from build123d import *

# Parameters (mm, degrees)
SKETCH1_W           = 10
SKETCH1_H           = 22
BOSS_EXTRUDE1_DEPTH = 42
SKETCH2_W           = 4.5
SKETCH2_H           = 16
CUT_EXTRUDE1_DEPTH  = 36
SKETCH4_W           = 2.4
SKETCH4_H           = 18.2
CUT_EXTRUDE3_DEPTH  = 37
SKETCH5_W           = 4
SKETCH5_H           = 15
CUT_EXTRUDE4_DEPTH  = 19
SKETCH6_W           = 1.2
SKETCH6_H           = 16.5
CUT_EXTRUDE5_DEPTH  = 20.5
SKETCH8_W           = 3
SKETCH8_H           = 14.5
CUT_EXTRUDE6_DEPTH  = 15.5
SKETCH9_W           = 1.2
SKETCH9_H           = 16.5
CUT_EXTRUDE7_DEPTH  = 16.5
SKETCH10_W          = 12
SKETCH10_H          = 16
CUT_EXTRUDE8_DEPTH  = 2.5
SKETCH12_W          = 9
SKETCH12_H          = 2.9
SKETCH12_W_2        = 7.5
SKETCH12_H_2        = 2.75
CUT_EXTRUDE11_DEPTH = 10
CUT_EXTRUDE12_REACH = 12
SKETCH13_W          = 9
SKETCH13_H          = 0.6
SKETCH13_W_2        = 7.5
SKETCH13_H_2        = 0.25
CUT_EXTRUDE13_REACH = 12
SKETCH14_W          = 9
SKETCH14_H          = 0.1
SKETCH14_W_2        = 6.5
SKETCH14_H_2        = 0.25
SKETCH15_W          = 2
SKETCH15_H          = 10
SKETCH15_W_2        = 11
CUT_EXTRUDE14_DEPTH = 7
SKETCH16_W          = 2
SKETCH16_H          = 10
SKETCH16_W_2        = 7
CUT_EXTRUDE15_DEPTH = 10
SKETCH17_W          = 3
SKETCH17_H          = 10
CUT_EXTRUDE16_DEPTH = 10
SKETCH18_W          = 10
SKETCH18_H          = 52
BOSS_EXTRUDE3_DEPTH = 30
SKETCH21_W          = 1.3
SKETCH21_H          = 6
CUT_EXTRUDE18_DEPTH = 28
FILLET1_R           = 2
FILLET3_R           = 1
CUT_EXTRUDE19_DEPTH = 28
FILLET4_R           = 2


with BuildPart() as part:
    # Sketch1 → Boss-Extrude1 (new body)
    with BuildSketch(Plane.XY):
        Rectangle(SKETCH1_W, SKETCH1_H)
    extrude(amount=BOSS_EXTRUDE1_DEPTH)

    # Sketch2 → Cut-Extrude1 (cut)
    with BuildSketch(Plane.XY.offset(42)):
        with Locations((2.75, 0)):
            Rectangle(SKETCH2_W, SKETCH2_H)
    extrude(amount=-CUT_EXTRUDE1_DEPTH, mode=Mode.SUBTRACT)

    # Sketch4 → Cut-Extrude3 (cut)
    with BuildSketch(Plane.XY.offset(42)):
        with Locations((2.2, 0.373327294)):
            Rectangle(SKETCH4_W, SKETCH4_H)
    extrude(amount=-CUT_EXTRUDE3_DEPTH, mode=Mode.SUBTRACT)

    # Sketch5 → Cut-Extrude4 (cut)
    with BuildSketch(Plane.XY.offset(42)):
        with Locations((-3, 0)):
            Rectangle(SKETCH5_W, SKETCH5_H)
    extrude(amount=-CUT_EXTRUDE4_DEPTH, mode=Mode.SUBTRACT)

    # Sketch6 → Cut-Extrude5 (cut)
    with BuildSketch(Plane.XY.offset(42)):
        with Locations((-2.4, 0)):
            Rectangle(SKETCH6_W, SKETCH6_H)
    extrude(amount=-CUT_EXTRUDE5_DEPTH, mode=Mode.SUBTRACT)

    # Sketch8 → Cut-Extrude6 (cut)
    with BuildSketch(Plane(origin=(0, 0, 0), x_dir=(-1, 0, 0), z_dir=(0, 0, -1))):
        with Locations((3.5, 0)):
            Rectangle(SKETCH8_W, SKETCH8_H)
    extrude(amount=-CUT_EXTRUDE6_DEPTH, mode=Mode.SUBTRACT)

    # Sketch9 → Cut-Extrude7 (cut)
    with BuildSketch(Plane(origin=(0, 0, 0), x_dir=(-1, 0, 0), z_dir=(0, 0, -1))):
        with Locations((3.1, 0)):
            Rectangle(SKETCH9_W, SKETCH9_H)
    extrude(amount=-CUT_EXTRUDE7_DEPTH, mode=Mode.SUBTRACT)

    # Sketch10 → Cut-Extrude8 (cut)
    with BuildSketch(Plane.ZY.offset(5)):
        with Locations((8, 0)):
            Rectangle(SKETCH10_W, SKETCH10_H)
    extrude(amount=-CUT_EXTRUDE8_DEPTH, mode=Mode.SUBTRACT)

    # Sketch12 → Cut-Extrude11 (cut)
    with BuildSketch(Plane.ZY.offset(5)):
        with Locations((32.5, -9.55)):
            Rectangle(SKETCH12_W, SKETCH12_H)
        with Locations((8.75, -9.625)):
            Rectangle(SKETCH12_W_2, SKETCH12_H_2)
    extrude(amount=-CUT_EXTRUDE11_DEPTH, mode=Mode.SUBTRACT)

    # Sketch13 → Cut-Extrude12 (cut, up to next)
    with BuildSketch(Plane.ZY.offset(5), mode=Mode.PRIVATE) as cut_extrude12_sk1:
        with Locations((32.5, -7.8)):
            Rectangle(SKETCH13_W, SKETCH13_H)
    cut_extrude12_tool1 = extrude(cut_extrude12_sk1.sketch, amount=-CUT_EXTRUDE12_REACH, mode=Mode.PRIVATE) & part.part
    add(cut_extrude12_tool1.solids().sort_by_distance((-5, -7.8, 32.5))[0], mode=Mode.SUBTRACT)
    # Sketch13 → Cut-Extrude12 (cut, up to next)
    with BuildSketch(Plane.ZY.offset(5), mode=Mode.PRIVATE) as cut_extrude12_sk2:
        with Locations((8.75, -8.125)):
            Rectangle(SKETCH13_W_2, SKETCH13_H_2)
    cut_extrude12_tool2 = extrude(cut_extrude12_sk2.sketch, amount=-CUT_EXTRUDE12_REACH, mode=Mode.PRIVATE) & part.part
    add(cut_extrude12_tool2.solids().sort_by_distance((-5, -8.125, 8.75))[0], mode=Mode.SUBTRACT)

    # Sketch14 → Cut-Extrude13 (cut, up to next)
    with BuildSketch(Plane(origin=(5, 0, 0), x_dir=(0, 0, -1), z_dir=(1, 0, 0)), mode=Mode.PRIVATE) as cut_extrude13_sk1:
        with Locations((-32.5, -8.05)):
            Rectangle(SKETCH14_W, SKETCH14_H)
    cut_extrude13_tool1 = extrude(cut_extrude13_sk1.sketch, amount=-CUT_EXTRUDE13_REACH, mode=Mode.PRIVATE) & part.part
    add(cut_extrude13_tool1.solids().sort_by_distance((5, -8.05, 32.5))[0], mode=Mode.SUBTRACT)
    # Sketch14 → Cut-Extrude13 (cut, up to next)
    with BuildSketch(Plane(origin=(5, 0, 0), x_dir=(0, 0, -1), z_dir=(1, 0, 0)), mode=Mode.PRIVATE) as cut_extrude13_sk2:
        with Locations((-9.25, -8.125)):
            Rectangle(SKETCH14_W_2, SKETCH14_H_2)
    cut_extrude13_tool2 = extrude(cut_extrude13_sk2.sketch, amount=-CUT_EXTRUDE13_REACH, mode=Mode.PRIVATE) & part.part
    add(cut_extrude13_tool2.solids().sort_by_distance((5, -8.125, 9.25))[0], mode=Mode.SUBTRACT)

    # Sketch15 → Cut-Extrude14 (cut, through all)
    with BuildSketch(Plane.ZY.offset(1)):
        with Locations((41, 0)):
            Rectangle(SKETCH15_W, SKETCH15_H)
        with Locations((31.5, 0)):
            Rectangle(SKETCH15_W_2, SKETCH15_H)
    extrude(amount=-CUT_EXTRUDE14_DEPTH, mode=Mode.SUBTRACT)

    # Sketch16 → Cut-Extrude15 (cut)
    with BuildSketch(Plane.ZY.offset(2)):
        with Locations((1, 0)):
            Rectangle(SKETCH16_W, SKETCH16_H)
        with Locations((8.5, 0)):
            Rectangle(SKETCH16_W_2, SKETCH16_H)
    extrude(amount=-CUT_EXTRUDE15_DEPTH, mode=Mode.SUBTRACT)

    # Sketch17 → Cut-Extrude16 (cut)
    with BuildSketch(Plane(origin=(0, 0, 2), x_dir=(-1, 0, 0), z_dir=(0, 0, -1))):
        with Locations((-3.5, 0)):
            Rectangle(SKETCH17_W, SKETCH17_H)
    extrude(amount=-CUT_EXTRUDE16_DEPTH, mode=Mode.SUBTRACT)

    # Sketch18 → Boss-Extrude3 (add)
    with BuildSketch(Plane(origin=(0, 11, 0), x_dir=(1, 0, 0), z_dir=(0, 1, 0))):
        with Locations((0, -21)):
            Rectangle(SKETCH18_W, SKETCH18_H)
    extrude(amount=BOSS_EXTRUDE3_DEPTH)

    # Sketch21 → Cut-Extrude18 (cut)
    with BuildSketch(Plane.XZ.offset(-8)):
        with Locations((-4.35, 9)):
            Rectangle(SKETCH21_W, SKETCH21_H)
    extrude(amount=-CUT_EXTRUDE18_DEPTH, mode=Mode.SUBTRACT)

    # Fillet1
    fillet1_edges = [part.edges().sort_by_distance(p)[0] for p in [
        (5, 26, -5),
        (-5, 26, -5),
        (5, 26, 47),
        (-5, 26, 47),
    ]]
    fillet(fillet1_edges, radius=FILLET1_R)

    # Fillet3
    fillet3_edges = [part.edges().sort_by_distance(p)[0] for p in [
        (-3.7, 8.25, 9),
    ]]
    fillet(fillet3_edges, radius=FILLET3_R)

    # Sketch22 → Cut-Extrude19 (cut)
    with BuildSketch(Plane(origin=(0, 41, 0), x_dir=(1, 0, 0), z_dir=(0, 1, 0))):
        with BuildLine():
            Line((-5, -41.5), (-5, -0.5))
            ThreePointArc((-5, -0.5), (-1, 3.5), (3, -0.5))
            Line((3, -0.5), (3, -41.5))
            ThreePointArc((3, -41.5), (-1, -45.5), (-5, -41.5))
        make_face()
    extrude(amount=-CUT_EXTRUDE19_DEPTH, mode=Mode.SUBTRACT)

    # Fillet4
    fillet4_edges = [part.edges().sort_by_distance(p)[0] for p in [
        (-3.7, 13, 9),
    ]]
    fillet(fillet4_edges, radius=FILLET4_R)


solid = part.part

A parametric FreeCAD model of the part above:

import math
import FreeCAD as App
import Part
import Sketcher


def edges_at(feature, points):
    """Names of the edges that pass closest to the given points."""
    edges = feature.Shape.Edges
    near = lambda p: min(range(len(edges)), key=lambda i: edges[i].distToShape(Part.Vertex(*p))[0])
    return sorted({f"Edge{near(p) + 1}" for p in points})

doc = App.newDocument("Part")
body = doc.addObject("PartDesign::Body", "Body")

sketch1 = body.newObject("Sketcher::SketchObject", "Sketch")
sketch1.AttachmentSupport = (doc.getObject("XY_Plane"), [""])
sketch1.MapMode = "FlatFace"
sketch1.addGeometry(Part.LineSegment(App.Vector(-5, 11, 0), App.Vector(-5, -11, 0)), False)
sketch1.addGeometry(Part.LineSegment(App.Vector(-5, -11, 0), App.Vector(5, -11, 0)), False)
sketch1.addGeometry(Part.LineSegment(App.Vector(5, -11, 0), App.Vector(5, 11, 0)), False)
sketch1.addGeometry(Part.LineSegment(App.Vector(5, 11, 0), App.Vector(-5, 11, 0)), False)
sketch1.addConstraint(Sketcher.Constraint("Coincident", 0, 2, 1, 1))
sketch1.addConstraint(Sketcher.Constraint("Coincident", 1, 2, 2, 1))
sketch1.addConstraint(Sketcher.Constraint("Coincident", 2, 2, 3, 1))
sketch1.addConstraint(Sketcher.Constraint("Coincident", 3, 2, 0, 1))
sketch1.addConstraint(Sketcher.Constraint("Vertical", 0))
sketch1.addConstraint(Sketcher.Constraint("Horizontal", 1))
sketch1.addConstraint(Sketcher.Constraint("Vertical", 2))
sketch1.addConstraint(Sketcher.Constraint("Horizontal", 3))
sketch1.addConstraint(Sketcher.Constraint("Symmetric", 0, 2, 2, 2, -1, 1))
sketch1.addConstraint(Sketcher.Constraint("DistanceX", 1, 1, 1, 2, 10.0))
sketch1.addConstraint(Sketcher.Constraint("DistanceY", 0, 2, 0, 1, 22.0))
pad1 = body.newObject("PartDesign::Pad", "Pad")
pad1.Profile = sketch1
pad1.Length = 42

sketch2 = body.newObject("Sketcher::SketchObject", "Sketch001")
sketch2.AttachmentSupport = (doc.getObject("XY_Plane"), [""])
sketch2.MapMode = "FlatFace"
sketch2.AttachmentOffset = App.Placement(App.Vector(0, 0, 42), App.Rotation())
sketch2.addGeometry(Part.LineSegment(App.Vector(0.5, 8, 0), App.Vector(0.5, -8, 0)), False)
sketch2.addGeometry(Part.LineSegment(App.Vector(0.5, -8, 0), App.Vector(5, -8, 0)), False)
sketch2.addGeometry(Part.LineSegment(App.Vector(5, -8, 0), App.Vector(5, 8, 0)), False)
sketch2.addGeometry(Part.LineSegment(App.Vector(5, 8, 0), App.Vector(0.5, 8, 0)), False)
sketch2.addConstraint(Sketcher.Constraint("Coincident", 0, 2, 1, 1))
sketch2.addConstraint(Sketcher.Constraint("Coincident", 1, 2, 2, 1))
sketch2.addConstraint(Sketcher.Constraint("Coincident", 2, 2, 3, 1))
sketch2.addConstraint(Sketcher.Constraint("Coincident", 3, 2, 0, 1))
sketch2.addConstraint(Sketcher.Constraint("Vertical", 0))
sketch2.addConstraint(Sketcher.Constraint("Horizontal", 1))
sketch2.addConstraint(Sketcher.Constraint("Vertical", 2))
sketch2.addConstraint(Sketcher.Constraint("Horizontal", 3))
sketch2.addConstraint(Sketcher.Constraint("DistanceY", 0, 2, 0, 1, 16.0))
sketch2.addConstraint(Sketcher.Constraint("DistanceX", 1, 1, 1, 2, 4.5))
sketch2.addConstraint(Sketcher.Constraint("DistanceY", 0, 2, -1, 1, 8.0))
sketch2.addConstraint(Sketcher.Constraint("DistanceX", -1, 1, 1, 2, 5.0))
pocket1 = body.newObject("PartDesign::Pocket", "Pocket")
pocket1.Profile = sketch2
pocket1.Length = 36

sketch3 = body.newObject("Sketcher::SketchObject", "Sketch002")
sketch3.AttachmentSupport = (doc.getObject("XY_Plane"), [""])
sketch3.MapMode = "FlatFace"
sketch3.AttachmentOffset = App.Placement(App.Vector(0, 0, 42), App.Rotation())
sketch3.addGeometry(Part.LineSegment(App.Vector(1, 9.473327, 0), App.Vector(1, -8.726673, 0)), False)
sketch3.addGeometry(Part.LineSegment(App.Vector(1, -8.726673, 0), App.Vector(3.4, -8.726673, 0)), False)
sketch3.addGeometry(Part.LineSegment(App.Vector(3.4, -8.726673, 0), App.Vector(3.4, 9.473327, 0)), False)
sketch3.addGeometry(Part.LineSegment(App.Vector(3.4, 9.473327, 0), App.Vector(1, 9.473327, 0)), False)
sketch3.addConstraint(Sketcher.Constraint("Coincident", 0, 2, 1, 1))
sketch3.addConstraint(Sketcher.Constraint("Coincident", 1, 2, 2, 1))
sketch3.addConstraint(Sketcher.Constraint("Coincident", 2, 2, 3, 1))
sketch3.addConstraint(Sketcher.Constraint("Coincident", 3, 2, 0, 1))
sketch3.addConstraint(Sketcher.Constraint("Vertical", 0))
sketch3.addConstraint(Sketcher.Constraint("Horizontal", 1))
sketch3.addConstraint(Sketcher.Constraint("Vertical", 2))
sketch3.addConstraint(Sketcher.Constraint("Horizontal", 3))
sketch3.addConstraint(Sketcher.Constraint("DistanceX", 1, 1, 1, 2, 2.4))
sketch3.addConstraint(Sketcher.Constraint("DistanceY", 0, 2, 0, 1, 18.2))
sketch3.addConstraint(Sketcher.Constraint("DistanceX", -1, 1, 0, 2, 1.0))
sketch3.addConstraint(Sketcher.Constraint("DistanceY", 0, 2, -1, 1, 8.726673))
pocket2 = body.newObject("PartDesign::Pocket", "Pocket001")
pocket2.Profile = sketch3
pocket2.Length = 37

sketch4 = body.newObject("Sketcher::SketchObject", "Sketch003")
sketch4.AttachmentSupport = (doc.getObject("XY_Plane"), [""])
sketch4.MapMode = "FlatFace"
sketch4.AttachmentOffset = App.Placement(App.Vector(0, 0, 42), App.Rotation())
sketch4.addGeometry(Part.LineSegment(App.Vector(-5, 7.5, 0), App.Vector(-5, -7.5, 0)), False)
sketch4.addGeometry(Part.LineSegment(App.Vector(-5, -7.5, 0), App.Vector(-1, -7.5, 0)), False)
sketch4.addGeometry(Part.LineSegment(App.Vector(-1, -7.5, 0), App.Vector(-1, 7.5, 0)), False)
sketch4.addGeometry(Part.LineSegment(App.Vector(-1, 7.5, 0), App.Vector(-5, 7.5, 0)), False)
sketch4.addConstraint(Sketcher.Constraint("Coincident", 0, 2, 1, 1))
sketch4.addConstraint(Sketcher.Constraint("Coincident", 1, 2, 2, 1))
sketch4.addConstraint(Sketcher.Constraint("Coincident", 2, 2, 3, 1))
sketch4.addConstraint(Sketcher.Constraint("Coincident", 3, 2, 0, 1))
sketch4.addConstraint(Sketcher.Constraint("Vertical", 0))
sketch4.addConstraint(Sketcher.Constraint("Horizontal", 1))
sketch4.addConstraint(Sketcher.Constraint("Vertical", 2))
sketch4.addConstraint(Sketcher.Constraint("Horizontal", 3))
sketch4.addConstraint(Sketcher.Constraint("DistanceX", 1, 1, 1, 2, 4.0))
sketch4.addConstraint(Sketcher.Constraint("DistanceY", 0, 2, 0, 1, 15.0))
sketch4.addConstraint(Sketcher.Constraint("DistanceX", 0, 2, -1, 1, 5.0))
sketch4.addConstraint(Sketcher.Constraint("DistanceY", 0, 2, -1, 1, 7.5))
pocket3 = body.newObject("PartDesign::Pocket", "Pocket002")
pocket3.Profile = sketch4
pocket3.Length = 19

sketch5 = body.newObject("Sketcher::SketchObject", "Sketch004")
sketch5.AttachmentSupport = (doc.getObject("XY_Plane"), [""])
sketch5.MapMode = "FlatFace"
sketch5.AttachmentOffset = App.Placement(App.Vector(0, 0, 42), App.Rotation())
sketch5.addGeometry(Part.LineSegment(App.Vector(-3, 8.25, 0), App.Vector(-3, -8.25, 0)), False)
sketch5.addGeometry(Part.LineSegment(App.Vector(-3, -8.25, 0), App.Vector(-1.8, -8.25, 0)), False)
sketch5.addGeometry(Part.LineSegment(App.Vector(-1.8, -8.25, 0), App.Vector(-1.8, 8.25, 0)), False)
sketch5.addGeometry(Part.LineSegment(App.Vector(-1.8, 8.25, 0), App.Vector(-3, 8.25, 0)), False)
sketch5.addConstraint(Sketcher.Constraint("Coincident", 0, 2, 1, 1))
sketch5.addConstraint(Sketcher.Constraint("Coincident", 1, 2, 2, 1))
sketch5.addConstraint(Sketcher.Constraint("Coincident", 2, 2, 3, 1))
sketch5.addConstraint(Sketcher.Constraint("Coincident", 3, 2, 0, 1))
sketch5.addConstraint(Sketcher.Constraint("Vertical", 0))
sketch5.addConstraint(Sketcher.Constraint("Horizontal", 1))
sketch5.addConstraint(Sketcher.Constraint("Vertical", 2))
sketch5.addConstraint(Sketcher.Constraint("Horizontal", 3))
sketch5.addConstraint(Sketcher.Constraint("DistanceX", 1, 1, 1, 2, 1.2))
sketch5.addConstraint(Sketcher.Constraint("DistanceY", 0, 2, 0, 1, 16.5))
sketch5.addConstraint(Sketcher.Constraint("DistanceX", 0, 2, -1, 1, 3.0))
sketch5.addConstraint(Sketcher.Constraint("DistanceY", 0, 2, -1, 1, 8.25))
pocket4 = body.newObject("PartDesign::Pocket", "Pocket003")
pocket4.Profile = sketch5
pocket4.Length = 20.5

sketch6 = body.newObject("Sketcher::SketchObject", "Sketch005")
sketch6.AttachmentSupport = (doc.getObject("XY_Plane"), [""])
sketch6.MapMode = "FlatFace"
sketch6.addGeometry(Part.LineSegment(App.Vector(-2, 7.25, 0), App.Vector(-2, -7.25, 0)), False)
sketch6.addGeometry(Part.LineSegment(App.Vector(-2, -7.25, 0), App.Vector(-5, -7.25, 0)), False)
sketch6.addGeometry(Part.LineSegment(App.Vector(-5, -7.25, 0), App.Vector(-5, 7.25, 0)), False)
sketch6.addGeometry(Part.LineSegment(App.Vector(-5, 7.25, 0), App.Vector(-2, 7.25, 0)), False)
sketch6.addConstraint(Sketcher.Constraint("Coincident", 0, 2, 1, 1))
sketch6.addConstraint(Sketcher.Constraint("Coincident", 1, 2, 2, 1))
sketch6.addConstraint(Sketcher.Constraint("Coincident", 2, 2, 3, 1))
sketch6.addConstraint(Sketcher.Constraint("Coincident", 3, 2, 0, 1))
sketch6.addConstraint(Sketcher.Constraint("Vertical", 0))
sketch6.addConstraint(Sketcher.Constraint("Horizontal", 1))
sketch6.addConstraint(Sketcher.Constraint("Vertical", 2))
sketch6.addConstraint(Sketcher.Constraint("Horizontal", 3))
sketch6.addConstraint(Sketcher.Constraint("DistanceX", 1, 2, 1, 1, 3.0))
sketch6.addConstraint(Sketcher.Constraint("DistanceY", 0, 2, 0, 1, 14.5))
sketch6.addConstraint(Sketcher.Constraint("DistanceX", 0, 2, -1, 1, 2.0))
sketch6.addConstraint(Sketcher.Constraint("DistanceY", 0, 2, -1, 1, 7.25))
pocket5 = body.newObject("PartDesign::Pocket", "Pocket004")
pocket5.Profile = sketch6
pocket5.Length = 15.5
pocket5.Reversed = True

sketch7 = body.newObject("Sketcher::SketchObject", "Sketch006")
sketch7.AttachmentSupport = (doc.getObject("XY_Plane"), [""])
sketch7.MapMode = "FlatFace"
sketch7.addGeometry(Part.LineSegment(App.Vector(-2.5, 8.25, 0), App.Vector(-2.5, -8.25, 0)), False)
sketch7.addGeometry(Part.LineSegment(App.Vector(-2.5, -8.25, 0), App.Vector(-3.7, -8.25, 0)), False)
sketch7.addGeometry(Part.LineSegment(App.Vector(-3.7, -8.25, 0), App.Vector(-3.7, 8.25, 0)), False)
sketch7.addGeometry(Part.LineSegment(App.Vector(-3.7, 8.25, 0), App.Vector(-2.5, 8.25, 0)), False)
sketch7.addConstraint(Sketcher.Constraint("Coincident", 0, 2, 1, 1))
sketch7.addConstraint(Sketcher.Constraint("Coincident", 1, 2, 2, 1))
sketch7.addConstraint(Sketcher.Constraint("Coincident", 2, 2, 3, 1))
sketch7.addConstraint(Sketcher.Constraint("Coincident", 3, 2, 0, 1))
sketch7.addConstraint(Sketcher.Constraint("Vertical", 0))
sketch7.addConstraint(Sketcher.Constraint("Horizontal", 1))
sketch7.addConstraint(Sketcher.Constraint("Vertical", 2))
sketch7.addConstraint(Sketcher.Constraint("Horizontal", 3))
sketch7.addConstraint(Sketcher.Constraint("DistanceX", 1, 2, 1, 1, 1.2))
sketch7.addConstraint(Sketcher.Constraint("DistanceY", 0, 2, 0, 1, 16.5))
sketch7.addConstraint(Sketcher.Constraint("DistanceX", 0, 2, -1, 1, 2.5))
sketch7.addConstraint(Sketcher.Constraint("DistanceY", 0, 2, -1, 1, 8.25))
pocket6 = body.newObject("PartDesign::Pocket", "Pocket005")
pocket6.Profile = sketch7
pocket6.Length = 16.5
pocket6.Reversed = True

sketch8 = body.newObject("Sketcher::SketchObject", "Sketch007")
sketch8.AttachmentSupport = (doc.getObject("YZ_Plane"), [""])
sketch8.MapMode = "FlatFace"
sketch8.AttachmentOffset = App.Placement(App.Vector(0, 0, -5), App.Rotation())
sketch8.addGeometry(Part.LineSegment(App.Vector(8, 2, 0), App.Vector(-8, 2, 0)), False)
sketch8.addGeometry(Part.LineSegment(App.Vector(-8, 2, 0), App.Vector(-8, 14, 0)), False)
sketch8.addGeometry(Part.LineSegment(App.Vector(-8, 14, 0), App.Vector(8, 14, 0)), False)
sketch8.addGeometry(Part.LineSegment(App.Vector(8, 14, 0), App.Vector(8, 2, 0)), False)
sketch8.addConstraint(Sketcher.Constraint("Coincident", 0, 2, 1, 1))
sketch8.addConstraint(Sketcher.Constraint("Coincident", 1, 2, 2, 1))
sketch8.addConstraint(Sketcher.Constraint("Coincident", 2, 2, 3, 1))
sketch8.addConstraint(Sketcher.Constraint("Coincident", 3, 2, 0, 1))
sketch8.addConstraint(Sketcher.Constraint("Horizontal", 0))
sketch8.addConstraint(Sketcher.Constraint("Vertical", 1))
sketch8.addConstraint(Sketcher.Constraint("Horizontal", 2))
sketch8.addConstraint(Sketcher.Constraint("Vertical", 3))
sketch8.addConstraint(Sketcher.Constraint("DistanceX", 0, 2, 0, 1, 16.0))
sketch8.addConstraint(Sketcher.Constraint("DistanceY", 1, 1, 1, 2, 12.0))
sketch8.addConstraint(Sketcher.Constraint("DistanceX", 0, 2, -1, 1, 8.0))
sketch8.addConstraint(Sketcher.Constraint("DistanceY", -1, 1, 0, 2, 2.0))
pocket7 = body.newObject("PartDesign::Pocket", "Pocket006")
pocket7.Profile = sketch8
pocket7.Length = 2.5
pocket7.Reversed = True

sketch9 = body.newObject("Sketcher::SketchObject", "Sketch008")
sketch9.AttachmentSupport = (doc.getObject("YZ_Plane"), [""])
sketch9.MapMode = "FlatFace"
sketch9.AttachmentOffset = App.Placement(App.Vector(0, 0, -5), App.Rotation())
sketch9.addGeometry(Part.LineSegment(App.Vector(-8.1, 28, 0), App.Vector(-11, 28, 0)), False)
sketch9.addGeometry(Part.LineSegment(App.Vector(-11, 28, 0), App.Vector(-11, 37, 0)), False)
sketch9.addGeometry(Part.LineSegment(App.Vector(-11, 37, 0), App.Vector(-8.1, 37, 0)), False)
sketch9.addGeometry(Part.LineSegment(App.Vector(-8.1, 37, 0), App.Vector(-8.1, 28, 0)), False)
sketch9.addGeometry(Part.LineSegment(App.Vector(-8.25, 5, 0), App.Vector(-11, 5, 0)), False)
sketch9.addGeometry(Part.LineSegment(App.Vector(-11, 5, 0), App.Vector(-11, 12.5, 0)), False)
sketch9.addGeometry(Part.LineSegment(App.Vector(-11, 12.5, 0), App.Vector(-8.25, 12.5, 0)), False)
sketch9.addGeometry(Part.LineSegment(App.Vector(-8.25, 12.5, 0), App.Vector(-8.25, 5, 0)), False)
sketch9.addConstraint(Sketcher.Constraint("Coincident", 0, 2, 1, 1))
sketch9.addConstraint(Sketcher.Constraint("Coincident", 1, 2, 2, 1))
sketch9.addConstraint(Sketcher.Constraint("Coincident", 2, 2, 3, 1))
sketch9.addConstraint(Sketcher.Constraint("Coincident", 3, 2, 0, 1))
sketch9.addConstraint(Sketcher.Constraint("Coincident", 4, 2, 5, 1))
sketch9.addConstraint(Sketcher.Constraint("Coincident", 5, 2, 6, 1))
sketch9.addConstraint(Sketcher.Constraint("Coincident", 6, 2, 7, 1))
sketch9.addConstraint(Sketcher.Constraint("Coincident", 7, 2, 4, 1))
sketch9.addConstraint(Sketcher.Constraint("Horizontal", 0))
sketch9.addConstraint(Sketcher.Constraint("Vertical", 1))
sketch9.addConstraint(Sketcher.Constraint("Horizontal", 2))
sketch9.addConstraint(Sketcher.Constraint("Vertical", 3))
sketch9.addConstraint(Sketcher.Constraint("Horizontal", 4))
sketch9.addConstraint(Sketcher.Constraint("Vertical", 5))
sketch9.addConstraint(Sketcher.Constraint("Horizontal", 6))
sketch9.addConstraint(Sketcher.Constraint("Vertical", 7))
sketch9.addConstraint(Sketcher.Constraint("Vertical", 1, 2, 4, 2))
sketch9.addConstraint(Sketcher.Constraint("DistanceY", 1, 1, 1, 2, 9.0))
sketch9.addConstraint(Sketcher.Constraint("DistanceX", 0, 2, 0, 1, 2.9))
sketch9.addConstraint(Sketcher.Constraint("DistanceY", 5, 1, 5, 2, 7.5))
sketch9.addConstraint(Sketcher.Constraint("DistanceX", 0, 2, -1, 1, 11.0))
sketch9.addConstraint(Sketcher.Constraint("DistanceY", -1, 1, 0, 2, 28.0))
sketch9.addConstraint(Sketcher.Constraint("DistanceY", -1, 1, 4, 2, 5.0))
sketch9.addConstraint(Sketcher.Constraint("DistanceX", 4, 2, 4, 1, 2.75))
pocket8 = body.newObject("PartDesign::Pocket", "Pocket007")
pocket8.Profile = sketch9
pocket8.Length = 10
pocket8.Reversed = True

sketch10 = body.newObject("Sketcher::SketchObject", "Sketch009")
sketch10.AttachmentSupport = (doc.getObject("YZ_Plane"), [""])
sketch10.MapMode = "FlatFace"
sketch10.AttachmentOffset = App.Placement(App.Vector(0, 0, -5), App.Rotation())
sketch10.addGeometry(Part.LineSegment(App.Vector(-7.5, 28, 0), App.Vector(-8.1, 28, 0)), False)
sketch10.addGeometry(Part.LineSegment(App.Vector(-8.1, 28, 0), App.Vector(-8.1, 37, 0)), False)
sketch10.addGeometry(Part.LineSegment(App.Vector(-8.1, 37, 0), App.Vector(-7.5, 37, 0)), False)
sketch10.addGeometry(Part.LineSegment(App.Vector(-7.5, 37, 0), App.Vector(-7.5, 28, 0)), False)
sketch10.addConstraint(Sketcher.Constraint("Coincident", 0, 2, 1, 1))
sketch10.addConstraint(Sketcher.Constraint("Coincident", 1, 2, 2, 1))
sketch10.addConstraint(Sketcher.Constraint("Coincident", 2, 2, 3, 1))
sketch10.addConstraint(Sketcher.Constraint("Coincident", 3, 2, 0, 1))
sketch10.addConstraint(Sketcher.Constraint("Horizontal", 0))
sketch10.addConstraint(Sketcher.Constraint("Vertical", 1))
sketch10.addConstraint(Sketcher.Constraint("Horizontal", 2))
sketch10.addConstraint(Sketcher.Constraint("Vertical", 3))
sketch10.addConstraint(Sketcher.Constraint("DistanceY", 1, 1, 1, 2, 9.0))
sketch10.addConstraint(Sketcher.Constraint("DistanceX", 0, 2, 0, 1, 0.6))
sketch10.addConstraint(Sketcher.Constraint("DistanceY", -1, 1, 0, 2, 28.0))
sketch10.addConstraint(Sketcher.Constraint("DistanceX", 0, 2, -1, 1, 8.1))
pocket9 = body.newObject("PartDesign::Pocket", "Pocket008")
pocket9.Profile = sketch10
pocket9.Type = "UpToFirst"
pocket9.Reversed = True

sketch11 = body.newObject("Sketcher::SketchObject", "Sketch010")
sketch11.AttachmentSupport = (doc.getObject("YZ_Plane"), [""])
sketch11.MapMode = "FlatFace"
sketch11.AttachmentOffset = App.Placement(App.Vector(0, 0, -5), App.Rotation())
sketch11.addGeometry(Part.LineSegment(App.Vector(-8, 5, 0), App.Vector(-8.25, 5, 0)), False)
sketch11.addGeometry(Part.LineSegment(App.Vector(-8.25, 5, 0), App.Vector(-8.25, 12.5, 0)), False)
sketch11.addGeometry(Part.LineSegment(App.Vector(-8.25, 12.5, 0), App.Vector(-8, 12.5, 0)), False)
sketch11.addGeometry(Part.LineSegment(App.Vector(-8, 12.5, 0), App.Vector(-8, 5, 0)), False)
sketch11.addConstraint(Sketcher.Constraint("Coincident", 0, 2, 1, 1))
sketch11.addConstraint(Sketcher.Constraint("Coincident", 1, 2, 2, 1))
sketch11.addConstraint(Sketcher.Constraint("Coincident", 2, 2, 3, 1))
sketch11.addConstraint(Sketcher.Constraint("Coincident", 3, 2, 0, 1))
sketch11.addConstraint(Sketcher.Constraint("Horizontal", 0))
sketch11.addConstraint(Sketcher.Constraint("Vertical", 1))
sketch11.addConstraint(Sketcher.Constraint("Horizontal", 2))
sketch11.addConstraint(Sketcher.Constraint("Vertical", 3))
sketch11.addConstraint(Sketcher.Constraint("DistanceY", 1, 1, 1, 2, 7.5))
sketch11.addConstraint(Sketcher.Constraint("DistanceY", -1, 1, 0, 2, 5.0))
sketch11.addConstraint(Sketcher.Constraint("DistanceX", 2, 2, -1, 1, 8.0))
sketch11.addConstraint(Sketcher.Constraint("DistanceX", 0, 2, 0, 1, 0.25))
pocket10 = body.newObject("PartDesign::Pocket", "Pocket009")
pocket10.Profile = sketch11
pocket10.Type = "UpToFirst"
pocket10.Reversed = True

sketch12 = body.newObject("Sketcher::SketchObject", "Sketch011")
sketch12.AttachmentSupport = (doc.getObject("YZ_Plane"), [""])
sketch12.MapMode = "FlatFace"
sketch12.AttachmentOffset = App.Placement(App.Vector(0, 0, 5), App.Rotation())
sketch12.addGeometry(Part.LineSegment(App.Vector(-8, 37, 0), App.Vector(-8.1, 37, 0)), False)
sketch12.addGeometry(Part.LineSegment(App.Vector(-8.1, 37, 0), App.Vector(-8.1, 28, 0)), False)
sketch12.addGeometry(Part.LineSegment(App.Vector(-8.1, 28, 0), App.Vector(-8, 28, 0)), False)
sketch12.addGeometry(Part.LineSegment(App.Vector(-8, 28, 0), App.Vector(-8, 37, 0)), False)
sketch12.addConstraint(Sketcher.Constraint("Coincident", 0, 2, 1, 1))
sketch12.addConstraint(Sketcher.Constraint("Coincident", 1, 2, 2, 1))
sketch12.addConstraint(Sketcher.Constraint("Coincident", 2, 2, 3, 1))
sketch12.addConstraint(Sketcher.Constraint("Coincident", 3, 2, 0, 1))
sketch12.addConstraint(Sketcher.Constraint("Horizontal", 0))
sketch12.addConstraint(Sketcher.Constraint("Vertical", 1))
sketch12.addConstraint(Sketcher.Constraint("Horizontal", 2))
sketch12.addConstraint(Sketcher.Constraint("Vertical", 3))
sketch12.addConstraint(Sketcher.Constraint("DistanceY", 1, 2, 1, 1, 9.0))
sketch12.addConstraint(Sketcher.Constraint("DistanceX", 0, 2, 0, 1, 0.1))
sketch12.addConstraint(Sketcher.Constraint("DistanceY", -1, 1, 0, 2, 37.0))
sketch12.addConstraint(Sketcher.Constraint("DistanceX", 2, 2, -1, 1, 8.0))
pocket11 = body.newObject("PartDesign::Pocket", "Pocket010")
pocket11.Profile = sketch12
pocket11.Type = "UpToFirst"

sketch13 = body.newObject("Sketcher::SketchObject", "Sketch012")
sketch13.AttachmentSupport = (doc.getObject("YZ_Plane"), [""])
sketch13.MapMode = "FlatFace"
sketch13.AttachmentOffset = App.Placement(App.Vector(0, 0, 5), App.Rotation())
sketch13.addGeometry(Part.LineSegment(App.Vector(-8, 12.5, 0), App.Vector(-8.25, 12.5, 0)), False)
sketch13.addGeometry(Part.LineSegment(App.Vector(-8.25, 12.5, 0), App.Vector(-8.25, 6, 0)), False)
sketch13.addGeometry(Part.LineSegment(App.Vector(-8.25, 6, 0), App.Vector(-8, 6, 0)), False)
sketch13.addGeometry(Part.LineSegment(App.Vector(-8, 6, 0), App.Vector(-8, 12.5, 0)), False)
sketch13.addConstraint(Sketcher.Constraint("Coincident", 0, 2, 1, 1))
sketch13.addConstraint(Sketcher.Constraint("Coincident", 1, 2, 2, 1))
sketch13.addConstraint(Sketcher.Constraint("Coincident", 2, 2, 3, 1))
sketch13.addConstraint(Sketcher.Constraint("Coincident", 3, 2, 0, 1))
sketch13.addConstraint(Sketcher.Constraint("Horizontal", 0))
sketch13.addConstraint(Sketcher.Constraint("Vertical", 1))
sketch13.addConstraint(Sketcher.Constraint("Horizontal", 2))
sketch13.addConstraint(Sketcher.Constraint("Vertical", 3))
sketch13.addConstraint(Sketcher.Constraint("DistanceY", 1, 2, 1, 1, 6.5))
sketch13.addConstraint(Sketcher.Constraint("DistanceY", -1, 1, 1, 2, 6.0))
sketch13.addConstraint(Sketcher.Constraint("DistanceX", 2, 2, -1, 1, 8.0))
sketch13.addConstraint(Sketcher.Constraint("DistanceX", 0, 2, 0, 1, 0.25))
pocket12 = body.newObject("PartDesign::Pocket", "Pocket011")
pocket12.Profile = sketch13
pocket12.Type = "UpToFirst"

sketch14 = body.newObject("Sketcher::SketchObject", "Sketch013")
sketch14.AttachmentSupport = (doc.getObject("YZ_Plane"), [""])
sketch14.MapMode = "FlatFace"
sketch14.AttachmentOffset = App.Placement(App.Vector(0, 0, -1), App.Rotation())
sketch14.addGeometry(Part.LineSegment(App.Vector(5, 40, 0), App.Vector(-5, 40, 0)), False)
sketch14.addGeometry(Part.LineSegment(App.Vector(-5, 40, 0), App.Vector(-5, 42, 0)), False)
sketch14.addGeometry(Part.LineSegment(App.Vector(-5, 42, 0), App.Vector(5, 42, 0)), False)
sketch14.addGeometry(Part.LineSegment(App.Vector(5, 42, 0), App.Vector(5, 40, 0)), False)
sketch14.addGeometry(Part.LineSegment(App.Vector(5, 26, 0), App.Vector(-5, 26, 0)), False)
sketch14.addGeometry(Part.LineSegment(App.Vector(-5, 26, 0), App.Vector(-5, 37, 0)), False)
sketch14.addGeometry(Part.LineSegment(App.Vector(-5, 37, 0), App.Vector(5, 37, 0)), False)
sketch14.addGeometry(Part.LineSegment(App.Vector(5, 37, 0), App.Vector(5, 26, 0)), False)
sketch14.addConstraint(Sketcher.Constraint("Coincident", 0, 2, 1, 1))
sketch14.addConstraint(Sketcher.Constraint("Coincident", 1, 2, 2, 1))
sketch14.addConstraint(Sketcher.Constraint("Coincident", 2, 2, 3, 1))
sketch14.addConstraint(Sketcher.Constraint("Coincident", 3, 2, 0, 1))
sketch14.addConstraint(Sketcher.Constraint("Coincident", 4, 2, 5, 1))
sketch14.addConstraint(Sketcher.Constraint("Coincident", 5, 2, 6, 1))
sketch14.addConstraint(Sketcher.Constraint("Coincident", 6, 2, 7, 1))
sketch14.addConstraint(Sketcher.Constraint("Coincident", 7, 2, 4, 1))
sketch14.addConstraint(Sketcher.Constraint("Horizontal", 0))
sketch14.addConstraint(Sketcher.Constraint("Vertical", 1))
sketch14.addConstraint(Sketcher.Constraint("Horizontal", 2))
sketch14.addConstraint(Sketcher.Constraint("Vertical", 3))
sketch14.addConstraint(Sketcher.Constraint("Horizontal", 4))
sketch14.addConstraint(Sketcher.Constraint("Vertical", 5))
sketch14.addConstraint(Sketcher.Constraint("Horizontal", 6))
sketch14.addConstraint(Sketcher.Constraint("Vertical", 7))
sketch14.addConstraint(Sketcher.Constraint("Vertical", 1, 2, 4, 2))
sketch14.addConstraint(Sketcher.Constraint("Vertical", 3, 2, 6, 2))
sketch14.addConstraint(Sketcher.Constraint("DistanceX", 0, 2, 0, 1, 10.0))
sketch14.addConstraint(Sketcher.Constraint("DistanceY", 1, 1, 1, 2, 2.0))
sketch14.addConstraint(Sketcher.Constraint("DistanceY", 5, 1, 5, 2, 11.0))
sketch14.addConstraint(Sketcher.Constraint("DistanceX", 0, 2, -1, 1, 5.0))
sketch14.addConstraint(Sketcher.Constraint("DistanceY", -1, 1, 0, 2, 40.0))
sketch14.addConstraint(Sketcher.Constraint("DistanceY", -1, 1, 4, 2, 26.0))
pocket13 = body.newObject("PartDesign::Pocket", "Pocket012")
pocket13.Profile = sketch14
pocket13.Type = "ThroughAll"
pocket13.Reversed = True

sketch15 = body.newObject("Sketcher::SketchObject", "Sketch014")
sketch15.AttachmentSupport = (doc.getObject("YZ_Plane"), [""])
sketch15.MapMode = "FlatFace"
sketch15.AttachmentOffset = App.Placement(App.Vector(0, 0, -2), App.Rotation())
sketch15.addGeometry(Part.LineSegment(App.Vector(5, 0, 0), App.Vector(-5, 0, 0)), False)
sketch15.addGeometry(Part.LineSegment(App.Vector(-5, 0, 0), App.Vector(-5, 2, 0)), False)
sketch15.addGeometry(Part.LineSegment(App.Vector(-5, 2, 0), App.Vector(5, 2, 0)), False)
sketch15.addGeometry(Part.LineSegment(App.Vector(5, 2, 0), App.Vector(5, 0, 0)), False)
sketch15.addGeometry(Part.LineSegment(App.Vector(5, 5, 0), App.Vector(-5, 5, 0)), False)
sketch15.addGeometry(Part.LineSegment(App.Vector(-5, 5, 0), App.Vector(-5, 12, 0)), False)
sketch15.addGeometry(Part.LineSegment(App.Vector(-5, 12, 0), App.Vector(5, 12, 0)), False)
sketch15.addGeometry(Part.LineSegment(App.Vector(5, 12, 0), App.Vector(5, 5, 0)), False)
sketch15.addConstraint(Sketcher.Constraint("Coincident", 0, 2, 1, 1))
sketch15.addConstraint(Sketcher.Constraint("Coincident", 1, 2, 2, 1))
sketch15.addConstraint(Sketcher.Constraint("Coincident", 2, 2, 3, 1))
sketch15.addConstraint(Sketcher.Constraint("Coincident", 3, 2, 0, 1))
sketch15.addConstraint(Sketcher.Constraint("Coincident", 4, 2, 5, 1))
sketch15.addConstraint(Sketcher.Constraint("Coincident", 5, 2, 6, 1))
sketch15.addConstraint(Sketcher.Constraint("Coincident", 6, 2, 7, 1))
sketch15.addConstraint(Sketcher.Constraint("Coincident", 7, 2, 4, 1))
sketch15.addConstraint(Sketcher.Constraint("Horizontal", 0))
sketch15.addConstraint(Sketcher.Constraint("Vertical", 1))
sketch15.addConstraint(Sketcher.Constraint("Horizontal", 2))
sketch15.addConstraint(Sketcher.Constraint("Vertical", 3))
sketch15.addConstraint(Sketcher.Constraint("Horizontal", 4))
sketch15.addConstraint(Sketcher.Constraint("Vertical", 5))
sketch15.addConstraint(Sketcher.Constraint("Horizontal", 6))
sketch15.addConstraint(Sketcher.Constraint("Vertical", 7))
sketch15.addConstraint(Sketcher.Constraint("Symmetric", 0, 2, 3, 2, -1, 1))
sketch15.addConstraint(Sketcher.Constraint("Vertical", 1, 2, 4, 2))
sketch15.addConstraint(Sketcher.Constraint("Vertical", 3, 2, 6, 2))
sketch15.addConstraint(Sketcher.Constraint("DistanceX", 0, 2, 0, 1, 10.0))
sketch15.addConstraint(Sketcher.Constraint("DistanceY", 1, 1, 1, 2, 2.0))
sketch15.addConstraint(Sketcher.Constraint("DistanceY", 5, 1, 5, 2, 7.0))
sketch15.addConstraint(Sketcher.Constraint("DistanceY", -1, 1, 4, 2, 5.0))
pocket14 = body.newObject("PartDesign::Pocket", "Pocket013")
pocket14.Profile = sketch15
pocket14.Length = 10
pocket14.Reversed = True

sketch16 = body.newObject("Sketcher::SketchObject", "Sketch015")
sketch16.AttachmentSupport = (doc.getObject("XY_Plane"), [""])
sketch16.MapMode = "FlatFace"
sketch16.AttachmentOffset = App.Placement(App.Vector(0, 0, 2), App.Rotation())
sketch16.addGeometry(Part.LineSegment(App.Vector(5, 5, 0), App.Vector(5, -5, 0)), False)
sketch16.addGeometry(Part.LineSegment(App.Vector(5, -5, 0), App.Vector(2, -5, 0)), False)
sketch16.addGeometry(Part.LineSegment(App.Vector(2, -5, 0), App.Vector(2, 5, 0)), False)
sketch16.addGeometry(Part.LineSegment(App.Vector(2, 5, 0), App.Vector(5, 5, 0)), False)
sketch16.addConstraint(Sketcher.Constraint("Coincident", 0, 2, 1, 1))
sketch16.addConstraint(Sketcher.Constraint("Coincident", 1, 2, 2, 1))
sketch16.addConstraint(Sketcher.Constraint("Coincident", 2, 2, 3, 1))
sketch16.addConstraint(Sketcher.Constraint("Coincident", 3, 2, 0, 1))
sketch16.addConstraint(Sketcher.Constraint("Vertical", 0))
sketch16.addConstraint(Sketcher.Constraint("Horizontal", 1))
sketch16.addConstraint(Sketcher.Constraint("Vertical", 2))
sketch16.addConstraint(Sketcher.Constraint("Horizontal", 3))
sketch16.addConstraint(Sketcher.Constraint("DistanceX", 1, 2, 1, 1, 3.0))
sketch16.addConstraint(Sketcher.Constraint("DistanceY", 0, 2, 0, 1, 10.0))
sketch16.addConstraint(Sketcher.Constraint("DistanceX", -1, 1, 0, 2, 5.0))
sketch16.addConstraint(Sketcher.Constraint("DistanceY", 0, 2, -1, 1, 5.0))
pocket15 = body.newObject("PartDesign::Pocket", "Pocket014")
pocket15.Profile = sketch16
pocket15.Length = 10
pocket15.Reversed = True

sketch17 = body.newObject("Sketcher::SketchObject", "Sketch016")
sketch17.AttachmentSupport = (doc.getObject("XZ_Plane"), [""])
sketch17.MapMode = "FlatFace"
sketch17.AttachmentOffset = App.Placement(App.Vector(0, 0, -11), App.Rotation())
sketch17.addGeometry(Part.LineSegment(App.Vector(-5, -5, 0), App.Vector(-5, 47, 0)), False)
sketch17.addGeometry(Part.LineSegment(App.Vector(-5, 47, 0), App.Vector(5, 47, 0)), False)
sketch17.addGeometry(Part.LineSegment(App.Vector(5, 47, 0), App.Vector(5, -5, 0)), False)
sketch17.addGeometry(Part.LineSegment(App.Vector(5, -5, 0), App.Vector(-5, -5, 0)), False)
sketch17.addConstraint(Sketcher.Constraint("Coincident", 0, 2, 1, 1))
sketch17.addConstraint(Sketcher.Constraint("Coincident", 1, 2, 2, 1))
sketch17.addConstraint(Sketcher.Constraint("Coincident", 2, 2, 3, 1))
sketch17.addConstraint(Sketcher.Constraint("Coincident", 3, 2, 0, 1))
sketch17.addConstraint(Sketcher.Constraint("Vertical", 0))
sketch17.addConstraint(Sketcher.Constraint("Horizontal", 1))
sketch17.addConstraint(Sketcher.Constraint("Vertical", 2))
sketch17.addConstraint(Sketcher.Constraint("Horizontal", 3))
sketch17.addConstraint(Sketcher.Constraint("DistanceX", 1, 1, 1, 2, 10.0))
sketch17.addConstraint(Sketcher.Constraint("DistanceY", 0, 1, 0, 2, 52.0))
sketch17.addConstraint(Sketcher.Constraint("DistanceX", 0, 2, -1, 1, 5.0))
sketch17.addConstraint(Sketcher.Constraint("DistanceY", -1, 1, 0, 2, 47.0))
pad2 = body.newObject("PartDesign::Pad", "Pad001")
pad2.Profile = sketch17
pad2.Length = 30
pad2.Reversed = True

sketch18 = body.newObject("Sketcher::SketchObject", "Sketch017")
sketch18.AttachmentSupport = (doc.getObject("XZ_Plane"), [""])
sketch18.MapMode = "FlatFace"
sketch18.AttachmentOffset = App.Placement(App.Vector(0, 0, -8), App.Rotation())
sketch18.addGeometry(Part.LineSegment(App.Vector(-5, 12, 0), App.Vector(-5, 6, 0)), False)
sketch18.addGeometry(Part.LineSegment(App.Vector(-5, 6, 0), App.Vector(-3.7, 6, 0)), False)
sketch18.addGeometry(Part.LineSegment(App.Vector(-3.7, 6, 0), App.Vector(-3.7, 12, 0)), False)
sketch18.addGeometry(Part.LineSegment(App.Vector(-3.7, 12, 0), App.Vector(-5, 12, 0)), False)
sketch18.addConstraint(Sketcher.Constraint("Coincident", 0, 2, 1, 1))
sketch18.addConstraint(Sketcher.Constraint("Coincident", 1, 2, 2, 1))
sketch18.addConstraint(Sketcher.Constraint("Coincident", 2, 2, 3, 1))
sketch18.addConstraint(Sketcher.Constraint("Coincident", 3, 2, 0, 1))
sketch18.addConstraint(Sketcher.Constraint("Vertical", 0))
sketch18.addConstraint(Sketcher.Constraint("Horizontal", 1))
sketch18.addConstraint(Sketcher.Constraint("Vertical", 2))
sketch18.addConstraint(Sketcher.Constraint("Horizontal", 3))
sketch18.addConstraint(Sketcher.Constraint("DistanceY", 0, 2, 0, 1, 6.0))
sketch18.addConstraint(Sketcher.Constraint("DistanceX", 1, 1, 1, 2, 1.3))
sketch18.addConstraint(Sketcher.Constraint("DistanceX", 0, 2, -1, 1, 5.0))
sketch18.addConstraint(Sketcher.Constraint("DistanceY", -1, 1, 0, 2, 6.0))
pocket16 = body.newObject("PartDesign::Pocket", "Pocket015")
pocket16.Profile = sketch18
pocket16.Length = 28
doc.recompute()

fillet = body.newObject("PartDesign::Fillet", "Fillet")
fillet.Base = (pocket16, edges_at(pocket16, [
    (5, 26, -5),
    (-5, 26, -5),
    (5, 26, 47),
    (-5, 26, 47),
]))
fillet.Radius = 2
doc.recompute()

fillet2 = body.newObject("PartDesign::Fillet", "Fillet001")
fillet2.Base = (fillet, edges_at(fillet, [(-3.7, 8.25, 9)]))
fillet2.Radius = 1

sketch19 = body.newObject("Sketcher::SketchObject", "Sketch018")
sketch19.AttachmentSupport = (doc.getObject("XZ_Plane"), [""])
sketch19.MapMode = "FlatFace"
sketch19.AttachmentOffset = App.Placement(App.Vector(0, 0, -41), App.Rotation())
sketch19.addGeometry(Part.LineSegment(App.Vector(-5, 0.5, 0), App.Vector(-5, 41.5, 0)), False)
sketch19.addGeometry(Part.ArcOfCircle(Part.Circle(App.Vector(-1, 41.5, 0), App.Vector(0, 0, 1), 4), math.radians(0), math.radians(180)), False)
sketch19.addGeometry(Part.LineSegment(App.Vector(3, 41.5, 0), App.Vector(3, 0.5, 0)), False)
sketch19.addGeometry(Part.ArcOfCircle(Part.Circle(App.Vector(-1, 0.5, 0), App.Vector(0, 0, 1), 4), math.radians(180), math.radians(360)), False)
sketch19.addConstraint(Sketcher.Constraint("Tangent", 0, 2, 1, 2))
sketch19.addConstraint(Sketcher.Constraint("Tangent", 1, 1, 2, 1))
sketch19.addConstraint(Sketcher.Constraint("Tangent", 2, 2, 3, 2))
sketch19.addConstraint(Sketcher.Constraint("Tangent", 3, 1, 0, 1))
sketch19.addConstraint(Sketcher.Constraint("Vertical", 0))
sketch19.addConstraint(Sketcher.Constraint("Vertical", 2))
sketch19.addConstraint(Sketcher.Constraint("Radius", 1, 4.0))
sketch19.addConstraint(Sketcher.Constraint("DistanceY", 0, 1, 0, 2, 41.0))
sketch19.addConstraint(Sketcher.Constraint("DistanceX", 1, 3, -1, 1, 1.0))
sketch19.addConstraint(Sketcher.Constraint("DistanceY", -1, 1, 1, 3, 41.5))
pocket17 = body.newObject("PartDesign::Pocket", "Pocket016")
pocket17.Profile = sketch19
pocket17.Length = 28
pocket17.Reversed = True
doc.recompute()

fillet3 = body.newObject("PartDesign::Fillet", "Fillet002")
fillet3.Base = (pocket17, edges_at(pocket17, [(-3.7, 13, 9)]))
fillet3.Radius = 2

doc.recompute()
